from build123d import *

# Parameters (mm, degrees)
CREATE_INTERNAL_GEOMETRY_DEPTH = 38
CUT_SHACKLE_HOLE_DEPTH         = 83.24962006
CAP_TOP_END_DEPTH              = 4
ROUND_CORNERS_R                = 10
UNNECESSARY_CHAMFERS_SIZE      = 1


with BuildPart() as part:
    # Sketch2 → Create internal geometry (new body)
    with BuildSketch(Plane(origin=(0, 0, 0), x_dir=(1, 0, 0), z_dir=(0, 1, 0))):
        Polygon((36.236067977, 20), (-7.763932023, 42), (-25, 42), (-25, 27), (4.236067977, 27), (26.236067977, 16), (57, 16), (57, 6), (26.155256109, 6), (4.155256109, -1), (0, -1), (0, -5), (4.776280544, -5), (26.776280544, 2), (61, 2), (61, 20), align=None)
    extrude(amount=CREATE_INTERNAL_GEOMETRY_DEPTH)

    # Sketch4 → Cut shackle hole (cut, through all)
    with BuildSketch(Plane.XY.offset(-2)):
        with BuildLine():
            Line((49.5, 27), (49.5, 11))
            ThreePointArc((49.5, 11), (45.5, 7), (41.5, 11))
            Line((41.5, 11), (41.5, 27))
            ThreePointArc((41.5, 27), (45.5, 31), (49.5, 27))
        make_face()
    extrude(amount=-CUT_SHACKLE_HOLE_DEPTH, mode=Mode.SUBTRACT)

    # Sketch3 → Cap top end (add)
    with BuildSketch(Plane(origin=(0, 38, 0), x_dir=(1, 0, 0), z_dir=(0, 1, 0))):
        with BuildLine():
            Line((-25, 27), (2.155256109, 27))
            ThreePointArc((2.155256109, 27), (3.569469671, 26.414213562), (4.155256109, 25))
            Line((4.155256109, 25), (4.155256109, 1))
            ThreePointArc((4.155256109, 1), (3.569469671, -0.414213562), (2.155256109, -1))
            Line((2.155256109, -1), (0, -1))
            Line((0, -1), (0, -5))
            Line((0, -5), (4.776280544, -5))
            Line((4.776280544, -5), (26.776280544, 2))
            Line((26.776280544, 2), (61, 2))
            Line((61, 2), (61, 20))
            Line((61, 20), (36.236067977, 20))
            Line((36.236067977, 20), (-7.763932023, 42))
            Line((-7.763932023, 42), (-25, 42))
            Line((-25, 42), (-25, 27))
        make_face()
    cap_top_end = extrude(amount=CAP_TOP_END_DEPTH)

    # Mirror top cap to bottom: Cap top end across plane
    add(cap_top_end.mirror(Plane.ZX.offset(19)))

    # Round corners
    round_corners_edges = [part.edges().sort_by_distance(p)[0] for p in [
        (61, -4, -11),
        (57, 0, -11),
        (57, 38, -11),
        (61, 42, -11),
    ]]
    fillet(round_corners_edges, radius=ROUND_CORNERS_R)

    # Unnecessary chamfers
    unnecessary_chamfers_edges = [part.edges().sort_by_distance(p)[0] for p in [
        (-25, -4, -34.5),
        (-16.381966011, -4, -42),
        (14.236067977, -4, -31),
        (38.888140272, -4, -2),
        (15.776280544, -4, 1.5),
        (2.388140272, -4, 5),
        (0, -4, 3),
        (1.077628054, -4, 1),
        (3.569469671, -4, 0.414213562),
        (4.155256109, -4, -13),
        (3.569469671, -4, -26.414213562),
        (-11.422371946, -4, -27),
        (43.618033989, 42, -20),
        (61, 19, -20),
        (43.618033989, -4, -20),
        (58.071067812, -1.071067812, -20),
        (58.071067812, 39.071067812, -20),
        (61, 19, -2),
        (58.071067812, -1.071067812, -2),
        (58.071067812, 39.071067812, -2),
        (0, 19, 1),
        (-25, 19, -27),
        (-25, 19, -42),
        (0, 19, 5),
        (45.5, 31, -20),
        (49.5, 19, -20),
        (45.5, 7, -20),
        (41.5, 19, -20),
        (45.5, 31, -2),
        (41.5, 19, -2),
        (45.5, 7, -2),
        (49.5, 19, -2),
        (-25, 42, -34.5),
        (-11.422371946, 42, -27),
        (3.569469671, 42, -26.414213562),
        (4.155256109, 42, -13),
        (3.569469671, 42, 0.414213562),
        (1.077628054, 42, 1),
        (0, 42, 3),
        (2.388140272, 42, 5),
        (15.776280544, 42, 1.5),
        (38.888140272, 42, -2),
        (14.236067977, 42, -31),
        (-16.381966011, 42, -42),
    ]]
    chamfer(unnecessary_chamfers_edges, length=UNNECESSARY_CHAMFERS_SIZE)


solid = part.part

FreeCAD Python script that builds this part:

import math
import FreeCAD as App
import Part
import Sketcher
from FreeCAD import Vector
Q = App.Units.Quantity


def edges_at(feature, points):
    """Names of the edges that pass closest to the given points."""
    edges = feature.Shape.Edges
    near = lambda p: min(range(len(edges)), key=lambda i: edges[i].distToShape(Part.Vertex(*p))[0])
    return sorted({f"Edge{near(p) + 1}" for p in points})

doc = App.newDocument("Part")
body = doc.addObject("PartDesign::Body", "Body")

# Sketch on XZ plane
sketch1 = body.newObject("Sketcher::SketchObject", "Sketch")
sketch1.AttachmentSupport = (doc.getObject("XZ_Plane"), [""])
sketch1.MapMode = "FlatFace"
sketch1.addGeometry(Part.LineSegment(Vector(36.2, -20, 0), Vector(-7.8, -42, 0)), False)
sketch1.addGeometry(Part.LineSegment(Vector(-7.8, -42, 0), Vector(-25, -42, 0)), False)
sketch1.addGeometry(Part.LineSegment(Vector(-25, -42, 0), Vector(-25, -27, 0)), False)
sketch1.addGeometry(Part.LineSegment(Vector(-25, -27, 0), Vector(4.2, -27, 0)), False)
sketch1.addGeometry(Part.LineSegment(Vector(4.2, -27, 0), Vector(26.2, -16, 0)), False)
sketch1.addGeometry(Part.LineSegment(Vector(26.2, -16, 0), Vector(57, -16, 0)), False)
sketch1.addGeometry(Part.LineSegment(Vector(57, -16, 0), Vector(57, -6, 0)), False)
sketch1.addGeometry(Part.LineSegment(Vector(57, -6, 0), Vector(26.2, -6, 0)), False)
sketch1.addGeometry(Part.LineSegment(Vector(26.2, -6, 0), Vector(4.2, 1, 0)), False)
sketch1.addGeometry(Part.LineSegment(Vector(4.2, 1, 0), Vector(0, 1, 0)), False)
sketch1.addGeometry(Part.LineSegment(Vector(0, 1, 0), Vector(0, 5, 0)), False)
sketch1.addGeometry(Part.LineSegment(Vector(0, 5, 0), Vector(4.8, 5, 0)), False)
sketch1.addGeometry(Part.LineSegment(Vector(4.8, 5, 0), Vector(26.8, -2, 0)), False)
sketch1.addGeometry(Part.LineSegment(Vector(26.8, -2, 0), Vector(61, -2, 0)), False)
sketch1.addGeometry(Part.LineSegment(Vector(61, -2, 0), Vector(61, -20, 0)), False)
sketch1.addGeometry(Part.LineSegment(Vector(61, -20, 0), Vector(36.2, -20, 0)), False)
sketch1.addConstraint(Sketcher.Constraint("Coincident", 0, 2, 1, 1))
sketch1.addConstraint(Sketcher.Constraint("Coincident", 1, 2, 2, 1))
sketch1.addConstraint(Sketcher.Constraint("Coincident", 2, 2, 3, 1))
sketch1.addConstraint(Sketcher.Constraint("Coincident", 3, 2, 4, 1))
sketch1.addConstraint(Sketcher.Constraint("Coincident", 4, 2, 5, 1))
sketch1.addConstraint(Sketcher.Constraint("Coincident", 5, 2, 6, 1))
sketch1.addConstraint(Sketcher.Constraint("Coincident", 6, 2, 7, 1))
sketch1.addConstraint(Sketcher.Constraint("Coincident", 7, 2, 8, 1))
sketch1.addConstraint(Sketcher.Constraint("Coincident", 8, 2, 9, 1))
sketch1.addConstraint(Sketcher.Constraint("Coincident", 9, 2, 10, 1))
sketch1.addConstraint(Sketcher.Constraint("Coincident", 10, 2, 11, 1))
sketch1.addConstraint(Sketcher.Constraint("Coincident", 11, 2, 12, 1))
sketch1.addConstraint(Sketcher.Constraint("Coincident", 12, 2, 13, 1))
sketch1.addConstraint(Sketcher.Constraint("Coincident", 13, 2, 14, 1))
sketch1.addConstraint(Sketcher.Constraint("Coincident", 14, 2, 15, 1))
sketch1.addConstraint(Sketcher.Constraint("Coincident", 15, 2, 0, 1))
sketch1.addConstraint(Sketcher.Constraint("Horizontal", 1))
sketch1.addConstraint(Sketcher.Constraint("Vertical", 2))
sketch1.addConstraint(Sketcher.Constraint("Horizontal", 3))
sketch1.addConstraint(Sketcher.Constraint("Horizontal", 5))
sketch1.addConstraint(Sketcher.Constraint("Vertical", 6))
sketch1.addConstraint(Sketcher.Constraint("Horizontal", 7))
sketch1.addConstraint(Sketcher.Constraint("Horizontal", 9))
sketch1.addConstraint(Sketcher.Constraint("Vertical", 10))
sketch1.addConstraint(Sketcher.Constraint("Horizontal", 11))
sketch1.addConstraint(Sketcher.Constraint("Horizontal", 13))
sketch1.addConstraint(Sketcher.Constraint("Vertical", 14))
sketch1.addConstraint(Sketcher.Constraint("Horizontal", 15))
sketch1.addConstraint(Sketcher.Constraint("PointOnObject", 9, 2, -2))
sketch1.addConstraint(Sketcher.Constraint("Parallel", 0, 4))
sketch1.addConstraint(Sketcher.Constraint("Parallel", 8, 12))
sketch1.addConstraint(Sketcher.Constraint("Equal", 8, 12))
sketch1.addConstraint(Sketcher.Constraint("DistanceY", 2, 1, 2, 2, Q("15 mm")))
sketch1.addConstraint(Sketcher.Constraint("DistanceY", 6, 1, 6, 2, Q("10 mm")))
sketch1.addConstraint(Sketcher.Constraint("DistanceY", 10, 1, 10, 2, Q("4 mm")))
sketch1.addConstraint(Sketcher.Constraint("DistanceY", 14, 2, 14, 1, Q("18 mm")))
sketch1.addConstraint(Sketcher.Constraint("DistanceY", 0, 2, -1, 1, Q("42 mm")))
sketch1.addConstraint(Sketcher.Constraint("DistanceX", 1, 2, -1, 1, Q("25 mm")))
sketch1.addConstraint(Sketcher.Constraint("DistanceY", 4, 2, -1, 1, Q("16 mm")))
sketch1.addConstraint(Sketcher.Constraint("DistanceX", -1, 1, 5, 2, Q("57 mm")))
sketch1.addConstraint(Sketcher.Constraint("DistanceY", -1, 1, 8, 2, Q("1 mm")))
sketch1.addConstraint(Sketcher.Constraint("DistanceX", -1, 1, 13, 2, Q("61 mm")))
sketch1.addConstraint(Sketcher.Constraint("DistanceX", 0, 2, 3, 2, Q("12 mm")))
sketch1.addConstraint(Sketcher.Constraint("DistanceX", 3, 2, 4, 2, Q("22 mm")))
sketch1.addConstraint(Sketcher.Constraint("DistanceX", 8, 2, 7, 2, Q("22 mm")))
sketch1.addConstraint(Sketcher.Constraint("DistanceX", 11, 1, 11, 2, Q("4.776281 mm")))
sketch1.addConstraint(Sketcher.Constraint("DistanceX", 1, 2, 1, 1, Q("17.236068 mm")))
sketch1.addConstraint(Sketcher.Constraint("DistanceX", 7, 2, 7, 1, Q("30.844744 mm")))
pad1 = body.newObject("PartDesign::Pad", "Pad")
pad1.Profile = sketch1
pad1.Length = 38
pad1.Reversed = True

# Sketch on XY plane
sketch2 = body.newObject("Sketcher::SketchObject", "Sketch001")
sketch2.AttachmentSupport = (doc.getObject("XY_Plane"), [""])
sketch2.MapMode = "FlatFace"
sketch2.AttachmentOffset = App.Placement(Vector(0, 0, -2), App.Rotation())
sketch2.addGeometry(Part.LineSegment(Vector(49.5, 11, 0), Vector(49.5, 27, 0)), False)
sketch2.addGeometry(Part.ArcOfCircle(Part.Circle(Vector(45.5, 27, 0), Vector(0, 0, 1), 4), math.radians(0), math.radians(180)), False)
sketch2.addGeometry(Part.LineSegment(Vector(41.5, 27, 0), Vector(41.5, 11, 0)), False)
sketch2.addGeometry(Part.ArcOfCircle(Part.Circle(Vector(45.5, 11, 0), Vector(0, 0, 1), 4), math.radians(180), math.radians(360)), False)
sketch2.addConstraint(Sketcher.Constraint("Tangent", 0, 2, 1, 1))
sketch2.addConstraint(Sketcher.Constraint("Tangent", 1, 2, 2, 1))
sketch2.addConstraint(Sketcher.Constraint("Tangent", 2, 2, 3, 1))
sketch2.addConstraint(Sketcher.Constraint("Tangent", 3, 2, 0, 1))
sketch2.addConstraint(Sketcher.Constraint("Vertical", 0))
sketch2.addConstraint(Sketcher.Constraint("Vertical", 2))
sketch2.addConstraint(Sketcher.Constraint("Radius", 1, Q("4 mm")))
sketch2.addConstraint(Sketcher.Constraint("DistanceY", 0, 1, 0, 2, Q("16 mm")))
sketch2.addConstraint(Sketcher.Constraint("DistanceY", -1, 1, 1, 3, Q("27 mm")))
sketch2.addConstraint(Sketcher.Constraint("DistanceX", -1, 1, 1, 3, Q("45.5 mm")))
pocket1 = body.newObject("PartDesign::Pocket", "Pocket")
pocket1.Profile = sketch2
pocket1.Type = "ThroughAll"

# Sketch on XZ plane
sketch3 = body.newObject("Sketcher::SketchObject", "Sketch002")
sketch3.AttachmentSupport = (doc.getObject("XZ_Plane"), [""])
sketch3.MapMode = "FlatFace"
sketch3.AttachmentOffset = App.Placement(Vector(0, 0, -38), App.Rotation())
sketch3.addGeometry(Part.LineSegment(Vector(-25, -27, 0), Vector(2.2, -27, 0)), False)
sketch3.addGeometry(Part.ArcOfCircle(Part.Circle(Vector(2.2, -25, 0), Vector(0, 0, 1), 2), math.radians(-90), math.radians(0)), False)
sketch3.addGeometry(Part.LineSegment(Vector(4.2, -25, 0), Vector(4.2, -1, 0)), False)
sketch3.addGeometry(Part.ArcOfCircle(Part.Circle(Vector(2.2, -1, 0), Vector(0, 0, 1), 2), math.radians(0), math.radians(90)), False)
sketch3.addGeometry(Part.LineSegment(Vector(2.2, 1, 0), Vector(0, 1, 0)), False)
sketch3.addGeometry(Part.LineSegment(Vector(0, 1, 0), Vector(0, 5, 0)), False)
sketch3.addGeometry(Part.LineSegment(Vector(0, 5, 0), Vector(4.8, 5, 0)), False)
sketch3.addGeometry(Part.LineSegment(Vector(4.8, 5, 0), Vector(26.8, -2, 0)), False)
sketch3.addGeometry(Part.LineSegment(Vector(26.8, -2, 0), Vector(61, -2, 0)), False)
sketch3.addGeometry(Part.LineSegment(Vector(61, -2, 0), Vector(61, -20, 0)), False)
sketch3.addGeometry(Part.LineSegment(Vector(61, -20, 0), Vector(36.2, -20, 0)), False)
sketch3.addGeometry(Part.LineSegment(Vector(36.2, -20, 0), Vector(-7.8, -42, 0)), False)
sketch3.addGeometry(Part.LineSegment(Vector(-7.8, -42, 0), Vector(-25, -42, 0)), False)
sketch3.addGeometry(Part.LineSegment(Vector(-25, -42, 0), Vector(-25, -27, 0)), False)
sketch3.addConstraint(Sketcher.Constraint("Tangent", 0, 2, 1, 1))
sketch3.addConstraint(Sketcher.Constraint("Tangent", 1, 2, 2, 1))
sketch3.addConstraint(Sketcher.Constraint("Tangent", 2, 2, 3, 1))
sketch3.addConstraint(Sketcher.Constraint("Tangent", 3, 2, 4, 1))
sketch3.addConstraint(Sketcher.Constraint("Coincident", 4, 2, 5, 1))
sketch3.addConstraint(Sketcher.Constraint("Coincident", 5, 2, 6, 1))
sketch3.addConstraint(Sketcher.Constraint("Coincident", 6, 2, 7, 1))
sketch3.addConstraint(Sketcher.Constraint("Coincident", 7, 2, 8, 1))
sketch3.addConstraint(Sketcher.Constraint("Coincident", 8, 2, 9, 1))
sketch3.addConstraint(Sketcher.Constraint("Coincident", 9, 2, 10, 1))
sketch3.addConstraint(Sketcher.Constraint("Coincident", 10, 2, 11, 1))
sketch3.addConstraint(Sketcher.Constraint("Coincident", 11, 2, 12, 1))
sketch3.addConstraint(Sketcher.Constraint("Coincident", 12, 2, 13, 1))
sketch3.addConstraint(Sketcher.Constraint("Coincident", 13, 2, 0, 1))
sketch3.addConstraint(Sketcher.Constraint("Horizontal", 0))
sketch3.addConstraint(Sketcher.Constraint("Vertical", 2))
sketch3.addConstraint(Sketcher.Constraint("Horizontal", 4))
sketch3.addConstraint(Sketcher.Constraint("Vertical", 5))
sketch3.addConstraint(Sketcher.Constraint("Horizontal", 6))
sketch3.addConstraint(Sketcher.Constraint("Horizontal", 8))
sketch3.addConstraint(Sketcher.Constraint("Vertical", 9))
sketch3.addConstraint(Sketcher.Constraint("Horizontal", 10))
sketch3.addConstraint(Sketcher.Constraint("Horizontal", 12))
sketch3.addConstraint(Sketcher.Constraint("Vertical", 13))
sketch3.addConstraint(Sketcher.Constraint("Equal", 1, 3))
sketch3.addConstraint(Sketcher.Constraint("PointOnObject", 4, 2, -2))
sketch3.addConstraint(Sketcher.Constraint("Radius", 1, Q("2 mm")))
sketch3.addConstraint(Sketcher.Constraint("DistanceY", 2, 1, 2, 2, Q("24 mm")))
sketch3.addConstraint(Sketcher.Constraint("DistanceY", 5, 1, 5, 2, Q("4 mm")))
sketch3.addConstraint(Sketcher.Constraint("DistanceY", 9, 2, 9, 1, Q("18 mm")))
sketch3.addConstraint(Sketcher.Constraint("DistanceY", 13, 1, 13, 2, Q("15 mm")))
sketch3.addConstraint(Sketcher.Constraint("DistanceY", 1, 3, -1, 1, Q("25 mm")))
sketch3.addConstraint(Sketcher.Constraint("DistanceY", 7, 2, -1, 1, Q("2 mm")))
sketch3.addConstraint(Sketcher.Constraint("DistanceX", -1, 1, 8, 2, Q("61 mm")))
sketch3.addConstraint(Sketcher.Constraint("DistanceX", 12, 2, -1, 1, Q("25 mm")))
sketch3.addConstraint(Sketcher.Constraint("DistanceX", 6, 2, 7, 2, Q("22 mm")))
sketch3.addConstraint(Sketcher.Constraint("DistanceX", 6, 1, 6, 2, Q("4.776281 mm")))
sketch3.addConstraint(Sketcher.Constraint("DistanceX", 0, 1, 0, 2, Q("27.155256 mm")))
sketch3.addConstraint(Sketcher.Constraint("DistanceX", 10, 2, 10, 1, Q("24.763932 mm")))
sketch3.addConstraint(Sketcher.Constraint("DistanceX", 12, 2, 12, 1, Q("17.236068 mm")))
pad2 = body.newObject("PartDesign::Pad", "Pad001")
pad2.Profile = sketch3
pad2.Length = 4
pad2.Reversed = True
doc.recompute()

datumplane = body.newObject("PartDesign::Plane", "DatumPlane")
datumplane.AttachmentSupport = (doc.getObject("XZ_Plane"), [""])
datumplane.MapMode = "FlatFace"
datumplane.AttachmentOffset = App.Placement(Vector(0, 0, -19), App.Rotation())
mirrored = body.newObject("PartDesign::Mirrored", "Mirrored")
mirrored.Originals = [pad2]
mirrored.MirrorPlane = (datumplane, [""])
body.Tip = mirrored
doc.recompute()

fillet = body.newObject("PartDesign::Fillet", "Fillet")
fillet.Base = (mirrored, edges_at(mirrored, [
    (61, -4, -11),
    (57, 0, -11),
    (57, 38, -11),
    (61, 42, -11),
]))
fillet.Radius = 10
doc.recompute()

chamfer = body.newObject("PartDesign::Chamfer", "Chamfer")
chamfer.Base = (fillet, edges_at(fillet, [
    (-25, -4, -34.5),
    (-16.382, -4, -42),
    (14.236, -4, -31),
    (38.888, -4, -2),
    (15.776, -4, 1.5),
    (2.388, -4, 5),
    (0, -4, 3),
    (1.078, -4, 1),
    (3.569, -4, 0.414),
    (4.155, -4, -13),
    (3.569, -4, -26.414),
    (-11.422, -4, -27),
    (43.618, 42, -20),
    (61, 19, -20),
    (43.618, -4, -20),
    (58.071, -1.071, -20),
    (58.071, 39.071, -20),
    (61, 19, -2),
    (58.071, -1.071, -2),
    (58.071, 39.071, -2),
    (0, 19, 1),
    (-25, 19, -27),
    (-25, 19, -42),
    (0, 19, 5),
    (45.5, 31, -20),
    (49.5, 19, -20),
    (45.5, 7, -20),
    (41.5, 19, -20),
    (45.5, 31, -2),
    (41.5, 19, -2),
    (45.5, 7, -2),
    (49.5, 19, -2),
    (-25, 42, -34.5),
    (-11.422, 42, -27),
    (3.569, 42, -26.414),
    (4.155, 42, -13),
    (3.569, 42, 0.414),
    (1.078, 42, 1),
    (0, 42, 3),
    (2.388, 42, 5),
    (15.776, 42, 1.5),
    (38.888, 42, -2),
    (14.236, 42, -31),
    (-16.382, 42, -42),
]))
chamfer.Size = 1

doc.recompute()
